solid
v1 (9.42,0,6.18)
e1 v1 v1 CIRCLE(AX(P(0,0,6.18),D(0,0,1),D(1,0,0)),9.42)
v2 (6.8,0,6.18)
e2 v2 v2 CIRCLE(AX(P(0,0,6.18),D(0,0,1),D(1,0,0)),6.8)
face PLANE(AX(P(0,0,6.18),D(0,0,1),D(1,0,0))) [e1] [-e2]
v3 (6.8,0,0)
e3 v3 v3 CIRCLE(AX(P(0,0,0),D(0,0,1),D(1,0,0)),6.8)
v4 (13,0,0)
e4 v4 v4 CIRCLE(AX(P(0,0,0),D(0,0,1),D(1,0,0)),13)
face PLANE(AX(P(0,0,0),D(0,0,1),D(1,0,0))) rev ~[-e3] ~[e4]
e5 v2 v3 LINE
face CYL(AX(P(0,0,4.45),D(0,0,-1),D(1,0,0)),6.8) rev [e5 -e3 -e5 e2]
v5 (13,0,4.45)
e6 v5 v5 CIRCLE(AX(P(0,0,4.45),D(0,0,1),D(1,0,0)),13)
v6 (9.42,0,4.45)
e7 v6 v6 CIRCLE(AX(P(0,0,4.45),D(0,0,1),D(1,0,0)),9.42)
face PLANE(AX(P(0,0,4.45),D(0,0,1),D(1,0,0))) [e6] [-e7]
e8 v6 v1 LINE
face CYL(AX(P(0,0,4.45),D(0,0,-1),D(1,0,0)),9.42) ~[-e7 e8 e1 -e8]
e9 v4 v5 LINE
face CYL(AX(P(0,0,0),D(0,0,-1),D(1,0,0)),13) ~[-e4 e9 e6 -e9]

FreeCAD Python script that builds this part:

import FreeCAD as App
import Part
import Sketcher
from FreeCAD import Vector

doc = App.newDocument("Part")
body = doc.addObject("PartDesign::Body", "Body")

sketch1 = body.newObject("Sketcher::SketchObject", "Sketch")
sketch1.AttachmentSupport = (doc.getObject("XY_Plane"), [""])
sketch1.MapMode = "FlatFace"
sketch1.addGeometry(Part.Circle(Vector(0, 0, 0), Vector(0, 0, 1), 13), False)
sketch1.addGeometry(Part.Circle(Vector(0, 0, 0), Vector(0, 0, 1), 7), False)
sketch1.addConstraint(Sketcher.Constraint("Coincident", 0, 3, -1, 1))
sketch1.addConstraint(Sketcher.Constraint("Coincident", 1, 3, -1, 1))
sketch1.addConstraint(Sketcher.Constraint("Diameter", 0, 26.0))
sketch1.addConstraint(Sketcher.Constraint("Diameter", 1, 13.6))
pad1 = body.newObject("PartDesign::Pad", "Pad")
pad1.Profile = sketch1
pad1.Length = 4.45

sketch2 = body.newObject("Sketcher::SketchObject", "Sketch001")
sketch2.AttachmentSupport = (doc.getObject("XY_Plane"), [""])
sketch2.MapMode = "FlatFace"
sketch2.AttachmentOffset = App.Placement(Vector(0, 0, 4.45), App.Rotation())
sketch2.addGeometry(Part.Circle(Vector(0, 0, 0), Vector(0, 0, 1), 9), False)
sketch2.addGeometry(Part.Circle(Vector(0, 0, 0), Vector(0, 0, 1), 7), False)
sketch2.addConstraint(Sketcher.Constraint("Coincident", 0, 3, -1, 1))
sketch2.addConstraint(Sketcher.Constraint("Coincident", 1, 3, -1, 1))
sketch2.addConstraint(Sketcher.Constraint("Diameter", 1, 13.6))
sketch2.addConstraint(Sketcher.Constraint("Diameter", 0, 18.84))
pad2 = body.newObject("PartDesign::Pad", "Pad001")
pad2.Profile = sketch2
pad2.Length = 1.73

doc.recompute()
